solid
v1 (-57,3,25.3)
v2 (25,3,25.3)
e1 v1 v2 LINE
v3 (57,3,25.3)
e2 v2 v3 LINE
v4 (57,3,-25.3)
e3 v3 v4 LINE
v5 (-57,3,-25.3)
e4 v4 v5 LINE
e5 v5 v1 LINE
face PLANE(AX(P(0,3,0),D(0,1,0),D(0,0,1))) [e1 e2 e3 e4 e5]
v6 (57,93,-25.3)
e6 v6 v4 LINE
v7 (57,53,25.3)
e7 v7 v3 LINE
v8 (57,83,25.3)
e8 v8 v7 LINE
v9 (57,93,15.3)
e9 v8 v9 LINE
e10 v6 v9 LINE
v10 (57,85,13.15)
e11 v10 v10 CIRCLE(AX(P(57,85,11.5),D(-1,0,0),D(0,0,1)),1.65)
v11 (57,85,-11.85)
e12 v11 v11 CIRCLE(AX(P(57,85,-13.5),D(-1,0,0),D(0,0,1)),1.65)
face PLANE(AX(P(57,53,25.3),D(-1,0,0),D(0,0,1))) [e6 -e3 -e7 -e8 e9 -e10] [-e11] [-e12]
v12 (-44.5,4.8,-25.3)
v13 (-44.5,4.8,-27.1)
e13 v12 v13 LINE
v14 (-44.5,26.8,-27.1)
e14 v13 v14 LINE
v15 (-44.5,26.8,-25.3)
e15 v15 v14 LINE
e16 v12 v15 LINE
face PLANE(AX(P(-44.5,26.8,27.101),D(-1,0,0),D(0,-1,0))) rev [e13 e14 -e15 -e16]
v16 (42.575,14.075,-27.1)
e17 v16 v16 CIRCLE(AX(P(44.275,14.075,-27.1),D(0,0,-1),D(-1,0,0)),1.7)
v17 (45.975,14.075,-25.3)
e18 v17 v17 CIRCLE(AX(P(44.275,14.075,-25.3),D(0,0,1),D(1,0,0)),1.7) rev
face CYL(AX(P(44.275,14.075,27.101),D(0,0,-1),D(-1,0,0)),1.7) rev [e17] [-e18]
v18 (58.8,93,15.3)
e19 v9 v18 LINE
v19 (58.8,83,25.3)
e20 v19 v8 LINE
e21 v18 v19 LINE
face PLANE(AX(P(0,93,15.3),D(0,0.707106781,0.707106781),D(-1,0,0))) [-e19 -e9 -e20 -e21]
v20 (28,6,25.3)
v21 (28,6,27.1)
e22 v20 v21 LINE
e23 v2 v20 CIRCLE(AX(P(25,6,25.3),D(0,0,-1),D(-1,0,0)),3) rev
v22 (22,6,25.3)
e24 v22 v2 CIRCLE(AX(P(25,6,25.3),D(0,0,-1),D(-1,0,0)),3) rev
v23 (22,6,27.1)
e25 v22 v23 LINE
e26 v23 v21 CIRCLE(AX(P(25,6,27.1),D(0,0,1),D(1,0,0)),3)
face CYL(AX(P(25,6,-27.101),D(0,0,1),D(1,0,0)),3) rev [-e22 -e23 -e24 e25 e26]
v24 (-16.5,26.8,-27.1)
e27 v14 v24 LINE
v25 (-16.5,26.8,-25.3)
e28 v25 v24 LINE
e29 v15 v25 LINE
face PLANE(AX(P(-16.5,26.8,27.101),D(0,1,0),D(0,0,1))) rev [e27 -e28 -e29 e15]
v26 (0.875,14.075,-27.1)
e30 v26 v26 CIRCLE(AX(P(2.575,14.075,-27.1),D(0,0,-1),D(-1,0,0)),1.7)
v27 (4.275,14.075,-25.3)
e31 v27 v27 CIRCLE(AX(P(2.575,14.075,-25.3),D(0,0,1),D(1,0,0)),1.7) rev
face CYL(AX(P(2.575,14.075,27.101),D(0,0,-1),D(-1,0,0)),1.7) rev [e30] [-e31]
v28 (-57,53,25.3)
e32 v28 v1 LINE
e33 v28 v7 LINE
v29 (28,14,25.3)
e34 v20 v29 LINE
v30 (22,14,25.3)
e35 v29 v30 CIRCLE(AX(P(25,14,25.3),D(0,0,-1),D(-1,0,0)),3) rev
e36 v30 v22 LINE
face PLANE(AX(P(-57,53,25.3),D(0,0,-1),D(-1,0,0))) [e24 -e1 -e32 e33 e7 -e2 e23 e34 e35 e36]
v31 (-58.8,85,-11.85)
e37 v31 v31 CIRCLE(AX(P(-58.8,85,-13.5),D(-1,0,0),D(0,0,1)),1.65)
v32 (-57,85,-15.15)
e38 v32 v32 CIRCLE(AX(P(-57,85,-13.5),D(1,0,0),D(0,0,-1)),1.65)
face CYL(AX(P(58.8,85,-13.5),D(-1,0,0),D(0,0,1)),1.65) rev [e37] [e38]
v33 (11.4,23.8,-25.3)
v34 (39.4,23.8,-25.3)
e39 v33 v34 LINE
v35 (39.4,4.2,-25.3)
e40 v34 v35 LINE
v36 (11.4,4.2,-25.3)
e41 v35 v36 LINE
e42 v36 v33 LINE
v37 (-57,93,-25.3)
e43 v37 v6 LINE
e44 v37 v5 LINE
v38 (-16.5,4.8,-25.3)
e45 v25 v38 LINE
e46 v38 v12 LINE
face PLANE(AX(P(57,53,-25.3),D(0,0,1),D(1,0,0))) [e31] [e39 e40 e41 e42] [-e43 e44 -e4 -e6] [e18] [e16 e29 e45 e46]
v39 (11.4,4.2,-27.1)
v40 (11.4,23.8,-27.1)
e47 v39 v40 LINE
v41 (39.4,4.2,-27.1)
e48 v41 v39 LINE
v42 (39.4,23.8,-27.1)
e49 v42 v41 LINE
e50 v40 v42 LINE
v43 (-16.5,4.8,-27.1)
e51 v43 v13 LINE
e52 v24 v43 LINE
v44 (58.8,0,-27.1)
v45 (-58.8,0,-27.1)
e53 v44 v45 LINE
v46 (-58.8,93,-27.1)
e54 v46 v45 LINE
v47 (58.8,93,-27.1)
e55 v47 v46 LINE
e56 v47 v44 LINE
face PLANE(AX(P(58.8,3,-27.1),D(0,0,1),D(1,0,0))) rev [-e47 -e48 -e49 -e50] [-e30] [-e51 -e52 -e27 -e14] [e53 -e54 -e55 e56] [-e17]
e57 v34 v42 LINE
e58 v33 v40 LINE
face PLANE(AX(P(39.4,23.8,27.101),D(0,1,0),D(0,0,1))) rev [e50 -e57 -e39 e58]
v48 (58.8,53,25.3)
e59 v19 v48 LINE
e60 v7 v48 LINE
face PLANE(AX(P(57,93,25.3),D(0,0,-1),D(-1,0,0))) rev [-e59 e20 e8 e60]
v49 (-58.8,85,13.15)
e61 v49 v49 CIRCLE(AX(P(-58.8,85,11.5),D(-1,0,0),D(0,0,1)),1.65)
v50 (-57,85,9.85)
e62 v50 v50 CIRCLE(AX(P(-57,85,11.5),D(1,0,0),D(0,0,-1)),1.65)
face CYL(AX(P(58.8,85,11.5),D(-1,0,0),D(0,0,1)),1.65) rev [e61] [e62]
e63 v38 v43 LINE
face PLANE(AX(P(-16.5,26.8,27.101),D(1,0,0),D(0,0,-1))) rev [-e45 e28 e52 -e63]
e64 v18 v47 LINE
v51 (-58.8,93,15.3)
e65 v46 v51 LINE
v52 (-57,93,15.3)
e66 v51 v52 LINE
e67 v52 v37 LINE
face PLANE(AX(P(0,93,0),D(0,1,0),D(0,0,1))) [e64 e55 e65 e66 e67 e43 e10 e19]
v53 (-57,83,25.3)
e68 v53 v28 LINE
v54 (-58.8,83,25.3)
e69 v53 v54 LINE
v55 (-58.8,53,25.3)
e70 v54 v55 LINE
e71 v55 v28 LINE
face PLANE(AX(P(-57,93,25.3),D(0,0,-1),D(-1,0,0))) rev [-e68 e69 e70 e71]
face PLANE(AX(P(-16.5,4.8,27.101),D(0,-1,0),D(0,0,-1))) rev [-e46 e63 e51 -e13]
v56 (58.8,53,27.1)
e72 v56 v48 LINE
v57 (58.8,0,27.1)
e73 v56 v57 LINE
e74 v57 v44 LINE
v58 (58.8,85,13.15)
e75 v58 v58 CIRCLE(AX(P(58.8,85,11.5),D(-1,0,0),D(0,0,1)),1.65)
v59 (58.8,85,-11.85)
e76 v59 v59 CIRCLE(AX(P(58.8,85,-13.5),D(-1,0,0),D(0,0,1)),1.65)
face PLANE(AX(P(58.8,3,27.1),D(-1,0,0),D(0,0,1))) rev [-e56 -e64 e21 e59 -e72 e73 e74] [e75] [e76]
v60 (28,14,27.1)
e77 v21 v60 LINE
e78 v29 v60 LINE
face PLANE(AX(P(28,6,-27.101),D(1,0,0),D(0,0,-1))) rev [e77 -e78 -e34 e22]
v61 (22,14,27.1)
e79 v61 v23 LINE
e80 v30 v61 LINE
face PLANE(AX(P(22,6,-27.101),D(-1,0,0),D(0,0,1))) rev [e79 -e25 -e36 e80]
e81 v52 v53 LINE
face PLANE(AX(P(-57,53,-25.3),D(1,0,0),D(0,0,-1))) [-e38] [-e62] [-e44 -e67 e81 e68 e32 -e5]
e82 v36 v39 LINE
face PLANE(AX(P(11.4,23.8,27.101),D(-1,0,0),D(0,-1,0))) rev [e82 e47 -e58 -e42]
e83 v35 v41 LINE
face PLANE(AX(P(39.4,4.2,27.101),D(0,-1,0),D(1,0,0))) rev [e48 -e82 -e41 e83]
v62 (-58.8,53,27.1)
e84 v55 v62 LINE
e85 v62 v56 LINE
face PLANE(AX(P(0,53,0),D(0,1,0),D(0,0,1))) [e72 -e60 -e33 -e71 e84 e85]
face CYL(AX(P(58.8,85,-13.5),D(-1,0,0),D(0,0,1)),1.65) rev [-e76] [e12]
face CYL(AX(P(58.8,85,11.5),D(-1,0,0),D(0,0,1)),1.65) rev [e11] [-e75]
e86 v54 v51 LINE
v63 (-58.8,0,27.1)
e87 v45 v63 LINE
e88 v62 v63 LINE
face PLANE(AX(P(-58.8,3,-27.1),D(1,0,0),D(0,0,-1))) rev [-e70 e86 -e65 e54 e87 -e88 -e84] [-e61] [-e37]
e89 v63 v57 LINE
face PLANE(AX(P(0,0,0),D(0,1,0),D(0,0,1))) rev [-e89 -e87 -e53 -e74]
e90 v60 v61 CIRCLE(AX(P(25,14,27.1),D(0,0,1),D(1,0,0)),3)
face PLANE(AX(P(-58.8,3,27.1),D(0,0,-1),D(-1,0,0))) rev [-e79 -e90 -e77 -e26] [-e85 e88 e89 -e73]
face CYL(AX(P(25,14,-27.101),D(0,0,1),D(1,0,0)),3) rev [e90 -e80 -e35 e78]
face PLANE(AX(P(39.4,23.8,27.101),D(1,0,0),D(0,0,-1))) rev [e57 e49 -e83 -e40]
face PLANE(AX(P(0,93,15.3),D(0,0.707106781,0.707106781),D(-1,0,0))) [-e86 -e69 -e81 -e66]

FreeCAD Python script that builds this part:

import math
import FreeCAD as App
import Part
import Sketcher

V = App.Vector


def edges_at(feature, points):
    """Names of the edges that pass closest to the given points."""
    edges = feature.Shape.Edges
    near = lambda p: min(range(len(edges)), key=lambda i: edges[i].distToShape(Part.Vertex(*p))[0])
    return sorted({f"Edge{near(p) + 1}" for p in points})

doc = App.newDocument("Part")
params = doc.addObject("Spreadsheet::Sheet", "Params")
for row, (alias, value) in enumerate([
    ("sketch1_width", "117.6 mm"),
    ("sketch1_height", "54.2 mm"),
    ("pad1_length", "3 mm"),
    ("sketch2_width", "114 mm"),
    ("sketch2_width2", "117.6 mm"),
    ("sketch2_height", "54.2 mm"),
    ("sketch2_height2", "50.6 mm"),
    ("pad2_length", "50 mm"),
    ("sketch3_width", "114 mm"),
    ("sketch3_width2", "1.8 mm"),
    ("sketch3_height", "50.6 mm"),
    ("sketch3_height2", "52.4 mm"),
    ("pad3_length", "40 mm"),
    ("chamfer_size", "10 mm"),
    ("sketch4_diameter", "3.3 mm"),
    ("sketch5_diameter", "3.4 mm"),
    ("sketch6_diameter", "3.4 mm"),
    ("sketch7_width", "28 mm"),
    ("sketch7_height", "19.6 mm"),
    ("sketch8_width", "28 mm"),
    ("sketch8_height", "22 mm"),
    ("sketch9_radius", "3 mm"),
    ("sketch9_height", "8 mm"),
], start=1):
    params.set(f"A{row}", alias)
    params.set(f"B{row}", "=" + value)
    params.setAlias(f"B{row}", alias)

body = doc.addObject("PartDesign::Body", "Body")

# Sketch on XZ plane
sketch1 = body.newObject("Sketcher::SketchObject", "Sketch")
sketch1.AttachmentSupport = (doc.getObject("XZ_Plane"), [""])
sketch1.MapMode = "FlatFace"
sketch1.addGeometry([
    Part.LineSegment(V(-59, -27, 0), V(-59, 27, 0)),
    Part.LineSegment(V(-59, 27, 0), V(59, 27, 0)),
    Part.LineSegment(V(59, 27, 0), V(59, -27, 0)),
    Part.LineSegment(V(59, -27, 0), V(-59, -27, 0)),
], False)
sketch1.addConstraint([
    Sketcher.Constraint("Coincident", 0, 2, 1, 1),
    Sketcher.Constraint("Coincident", 1, 2, 2, 1),
    Sketcher.Constraint("Coincident", 2, 2, 3, 1),
    Sketcher.Constraint("Coincident", 3, 2, 0, 1),
    Sketcher.Constraint("Vertical", 0),
    Sketcher.Constraint("Horizontal", 1),
    Sketcher.Constraint("Vertical", 2),
    Sketcher.Constraint("Horizontal", 3),
    Sketcher.Constraint("Symmetric", 0, 2, 2, 2, -1, 1),
    Sketcher.Constraint("DistanceX", 1, 1, 1, 2, 117.6),
    Sketcher.Constraint("DistanceY", 0, 1, 0, 2, 54.2),
])
sketch1.setExpression("Constraints[9]", "Params.sketch1_width")
sketch1.setExpression("Constraints[10]", "Params.sketch1_height")
pad1 = body.newObject("PartDesign::Pad", "Pad")
pad1.Profile = sketch1
pad1.setExpression("Length", "Params.pad1_length")
pad1.Reversed = True

# Sketch on XZ plane
sketch2 = body.newObject("Sketcher::SketchObject", "Sketch001")
sketch2.AttachmentSupport = (doc.getObject("XZ_Plane"), [""])
sketch2.MapMode = "FlatFace"
sketch2.AttachmentOffset = App.Placement(V(0, 0, -3), App.Rotation())
sketch2.addGeometry([
    Part.LineSegment(V(-59, -27, 0), V(-59, 27, 0)),  # 0
    Part.LineSegment(V(-59, 27, 0), V(59, 27, 0)),  # 1
    Part.LineSegment(V(59, 27, 0), V(59, -27, 0)),  # 2
    Part.LineSegment(V(59, -27, 0), V(-59, -27, 0)),  # 3
    Part.LineSegment(V(57, 25, 0), V(-57, 25, 0)),  # 4
    Part.LineSegment(V(-57, 25, 0), V(-57, -25, 0)),  # 5
    Part.LineSegment(V(-57, -25, 0), V(57, -25, 0)),  # 6
    Part.LineSegment(V(57, -25, 0), V(57, 25, 0)),  # 7
], False)
sketch2.addConstraint([
    Sketcher.Constraint("Coincident", 0, 2, 1, 1),
    Sketcher.Constraint("Coincident", 1, 2, 2, 1),
    Sketcher.Constraint("Coincident", 2, 2, 3, 1),
    Sketcher.Constraint("Coincident", 3, 2, 0, 1),
    Sketcher.Constraint("Coincident", 4, 2, 5, 1),
    Sketcher.Constraint("Coincident", 5, 2, 6, 1),
    Sketcher.Constraint("Coincident", 6, 2, 7, 1),
    Sketcher.Constraint("Coincident", 7, 2, 4, 1),
    Sketcher.Constraint("Vertical", 0),
    Sketcher.Constraint("Horizontal", 1),
    Sketcher.Constraint("Vertical", 2),
    Sketcher.Constraint("Horizontal", 3),
    Sketcher.Constraint("Horizontal", 4),
    Sketcher.Constraint("Vertical", 5),
    Sketcher.Constraint("Horizontal", 6),
    Sketcher.Constraint("Vertical", 7),
    Sketcher.Constraint("Symmetric", 0, 2, 2, 2, -1, 1),
    Sketcher.Constraint("Symmetric", 4, 2, 6, 2, -1, 1),
    Sketcher.Constraint("DistanceX", 4, 2, 4, 1, 114.0),
    Sketcher.Constraint("DistanceX", 1, 1, 1, 2, 117.6),
    Sketcher.Constraint("DistanceY", 0, 1, 0, 2, 54.2),
    Sketcher.Constraint("DistanceY", 5, 2, 5, 1, 50.6),
])
sketch2.setExpression("Constraints[18]", "Params.sketch2_width")
sketch2.setExpression("Constraints[19]", "Params.sketch2_width2")
sketch2.setExpression("Constraints[20]", "Params.sketch2_height")
sketch2.setExpression("Constraints[21]", "Params.sketch2_height2")
pad2 = body.newObject("PartDesign::Pad", "Pad001")
pad2.Profile = sketch2
pad2.setExpression("Length", "Params.pad2_length")
pad2.Reversed = True

# Sketch on XZ plane
sketch3 = body.newObject("Sketcher::SketchObject", "Sketch002")
sketch3.AttachmentSupport = (doc.getObject("XZ_Plane"), [""])
sketch3.MapMode = "FlatFace"
sketch3.AttachmentOffset = App.Placement(V(0, 0, -53), App.Rotation())
sketch3.addGeometry([
    Part.LineSegment(V(57, -25.3, 0), V(57, 25.3, 0)),  # 0
    Part.LineSegment(V(57, 25.3, 0), V(58.8, 25.3, 0)),  # 1
    Part.LineSegment(V(58.8, 25.3, 0), V(58.8, -27.1, 0)),  # 2
    Part.LineSegment(V(58.8, -27.1, 0), V(-58.8, -27.1, 0)),  # 3
    Part.LineSegment(V(-58.8, -27.1, 0), V(-58.8, 25.3, 0)),  # 4
    Part.LineSegment(V(-58.8, 25.3, 0), V(-57, 25.3, 0)),  # 5
    Part.LineSegment(V(-57, 25.3, 0), V(-57, -25.3, 0)),  # 6
    Part.LineSegment(V(-57, -25.3, 0), V(57, -25.3, 0)),  # 7
], False)
sketch3.addConstraint([
    Sketcher.Constraint("Coincident", 0, 2, 1, 1),
    Sketcher.Constraint("Coincident", 1, 2, 2, 1),
    Sketcher.Constraint("Coincident", 2, 2, 3, 1),
    Sketcher.Constraint("Coincident", 3, 2, 4, 1),
    Sketcher.Constraint("Coincident", 4, 2, 5, 1),
    Sketcher.Constraint("Coincident", 5, 2, 6, 1),
    Sketcher.Constraint("Coincident", 6, 2, 7, 1),
    Sketcher.Constraint("Coincident", 7, 2, 0, 1),
    Sketcher.Constraint("Vertical", 0),
    Sketcher.Constraint("Horizontal", 1),
    Sketcher.Constraint("Vertical", 2),
    Sketcher.Constraint("Horizontal", 3),
    Sketcher.Constraint("Vertical", 4),
    Sketcher.Constraint("Horizontal", 5),
    Sketcher.Constraint("Vertical", 6),
    Sketcher.Constraint("Horizontal", 7),
    Sketcher.Constraint("Symmetric", 0, 2, 6, 2, -1, 1),
    Sketcher.Constraint("Symmetric", 1, 2, 4, 2, -2),
    Sketcher.Constraint("DistanceX", 7, 1, 7, 2, 114.0),
    Sketcher.Constraint("DistanceX", 1, 1, 1, 2, 1.8),
    Sketcher.Constraint("DistanceY", 0, 1, 0, 2, 50.6),
    Sketcher.Constraint("DistanceY", 2, 2, 2, 1, 52.4),
])
sketch3.setExpression("Constraints[18]", "Params.sketch3_width")
sketch3.setExpression("Constraints[19]", "Params.sketch3_width2")
sketch3.setExpression("Constraints[20]", "Params.sketch3_height")
sketch3.setExpression("Constraints[21]", "Params.sketch3_height2")
pad3 = body.newObject("PartDesign::Pad", "Pad002")
pad3.Profile = sketch3
pad3.setExpression("Length", "Params.pad3_length")
pad3.Reversed = True
doc.recompute()

chamfer = body.newObject("PartDesign::Chamfer", "Chamfer")
chamfer.Base = (pad3, edges_at(pad3, [(-57.9, 93, 25.3), (57.9, 93, 25.3)]))
chamfer.setExpression("Size", "Params.chamfer_size")

# Sketch on YZ plane
sketch4 = body.newObject("Sketcher::SketchObject", "Sketch003")
sketch4.AttachmentSupport = (doc.getObject("YZ_Plane"), [""])
sketch4.MapMode = "FlatFace"
sketch4.AttachmentOffset = App.Placement(V(0, 0, -58.8), App.Rotation())
sketch4.addGeometry([
    Part.Circle(V(85, 11.5, 0), V(0, 0, 1), 1.6),
    Part.Circle(V(85, -13.5, 0), V(0, 0, 1), 1.6),
], False)
sketch4.addConstraint([
    Sketcher.Constraint("Equal", 0, 1),
    Sketcher.Constraint("Vertical", 0, 3, 1, 3),
    Sketcher.Constraint("Diameter", 0, 3.3),
    Sketcher.Constraint("DistanceX", -1, 1, 0, 3, 85.0),
    Sketcher.Constraint("DistanceY", 1, 3, 0, 3, 25.0),
    Sketcher.Constraint("DistanceY", -1, 1, 0, 3, 11.5),
])
sketch4.setExpression("Constraints[2]", "Params.sketch4_diameter")
pocket1 = body.newObject("PartDesign::Pocket", "Pocket")
pocket1.Profile = sketch4
pocket1.Type = "ThroughAll"
pocket1.Reversed = True

# Sketch on XY plane
sketch5 = body.newObject("Sketcher::SketchObject", "Sketch004")
sketch5.AttachmentSupport = (doc.getObject("XY_Plane"), [""])
sketch5.MapMode = "FlatFace"
sketch5.AttachmentOffset = App.Placement(V(0, 0, -27.1), App.Rotation())
sketch5.addGeometry(Part.Circle(V(2.6, 14.1, 0), V(0, 0, 1), 1.7), False)
sketch5.addConstraint([
    Sketcher.Constraint("Diameter", 0, 3.4),
    Sketcher.Constraint("DistanceX", -1, 1, 0, 3, 2.575),
    Sketcher.Constraint("DistanceY", -1, 1, 0, 3, 14.075),
])
sketch5.setExpression("Constraints[0]", "Params.sketch5_diameter")
pocket2 = body.newObject("PartDesign::Pocket", "Pocket001")
pocket2.Profile = sketch5
pocket2.Type = "UpToFirst"
pocket2.Reversed = True

# Sketch on XY plane
sketch6 = body.newObject("Sketcher::SketchObject", "Sketch005")
sketch6.AttachmentSupport = (doc.getObject("XY_Plane"), [""])
sketch6.MapMode = "FlatFace"
sketch6.AttachmentOffset = App.Placement(V(0, 0, -27.1), App.Rotation())
sketch6.addGeometry(Part.Circle(V(44.3, 14.1, 0), V(0, 0, 1), 1.7), False)
sketch6.addConstraint([
    Sketcher.Constraint("Diameter", 0, 3.4),
    Sketcher.Constraint("DistanceX", -1, 1, 0, 3, 44.275),
    Sketcher.Constraint("DistanceY", -1, 1, 0, 3, 14.075),
])
sketch6.setExpression("Constraints[0]", "Params.sketch6_diameter")
pocket3 = body.newObject("PartDesign::Pocket", "Pocket002")
pocket3.Profile = sketch6
pocket3.Type = "UpToFirst"
pocket3.Reversed = True

# Sketch on XY plane
sketch7 = body.newObject("Sketcher::SketchObject", "Sketch006")
sketch7.AttachmentSupport = (doc.getObject("XY_Plane"), [""])
sketch7.MapMode = "FlatFace"
sketch7.AttachmentOffset = App.Placement(V(0, 0, -27.1), App.Rotation())
sketch7.addGeometry([
    Part.LineSegment(V(39, 24, 0), V(39, 4, 0)),
    Part.LineSegment(V(39, 4, 0), V(11, 4, 0)),
    Part.LineSegment(V(11, 4, 0), V(11, 24, 0)),
    Part.LineSegment(V(11, 24, 0), V(39, 24, 0)),
], False)
sketch7.addConstraint([
    Sketcher.Constraint("Coincident", 0, 2, 1, 1),
    Sketcher.Constraint("Coincident", 1, 2, 2, 1),
    Sketcher.Constraint("Coincident", 2, 2, 3, 1),
    Sketcher.Constraint("Coincident", 3, 2, 0, 1),
    Sketcher.Constraint("Vertical", 0),
    Sketcher.Constraint("Horizontal", 1),
    Sketcher.Constraint("Vertical", 2),
    Sketcher.Constraint("Horizontal", 3),
    Sketcher.Constraint("DistanceX", 1, 2, 1, 1, 28.0),
    Sketcher.Constraint("DistanceY", 0, 2, 0, 1, 19.6),
    Sketcher.Constraint("DistanceX", -1, 1, 0, 2, 39.4),
    Sketcher.Constraint("DistanceY", -1, 1, 0, 2, 4.2),
])
sketch7.setExpression("Constraints[8]", "Params.sketch7_width")
sketch7.setExpression("Constraints[9]", "Params.sketch7_height")
pocket4 = body.newObject("PartDesign::Pocket", "Pocket003")
pocket4.Profile = sketch7
pocket4.Type = "UpToFirst"
pocket4.Reversed = True

# Sketch on XY plane
sketch8 = body.newObject("Sketcher::SketchObject", "Sketch007")
sketch8.AttachmentSupport = (doc.getObject("XY_Plane"), [""])
sketch8.MapMode = "FlatFace"
sketch8.AttachmentOffset = App.Placement(V(0, 0, -27.1), App.Rotation())
sketch8.addGeometry([
    Part.LineSegment(V(-16, 27, 0), V(-16, 5, 0)),
    Part.LineSegment(V(-16, 5, 0), V(-44, 5, 0)),
    Part.LineSegment(V(-44, 5, 0), V(-44, 27, 0)),
    Part.LineSegment(V(-44, 27, 0), V(-16, 27, 0)),
], False)
sketch8.addConstraint([
    Sketcher.Constraint("Coincident", 0, 2, 1, 1),
    Sketcher.Constraint("Coincident", 1, 2, 2, 1),
    Sketcher.Constraint("Coincident", 2, 2, 3, 1),
    Sketcher.Constraint("Coincident", 3, 2, 0, 1),
    Sketcher.Constraint("Vertical", 0),
    Sketcher.Constraint("Horizontal", 1),
    Sketcher.Constraint("Vertical", 2),
    Sketcher.Constraint("Horizontal", 3),
    Sketcher.Constraint("DistanceX", 1, 2, 1, 1, 28.0),
    Sketcher.Constraint("DistanceY", 0, 2, 0, 1, 22.0),
    Sketcher.Constraint("DistanceX", 0, 2, -1, 1, 16.5),
    Sketcher.Constraint("DistanceY", -1, 1, 0, 2, 4.8),
])
sketch8.setExpression("Constraints[8]", "Params.sketch8_width")
sketch8.setExpression("Constraints[9]", "Params.sketch8_height")
pocket5 = body.newObject("PartDesign::Pocket", "Pocket004")
pocket5.Profile = sketch8
pocket5.Type = "UpToFirst"
pocket5.Reversed = True

# Sketch on XY plane
sketch9 = body.newObject("Sketcher::SketchObject", "Sketch008")
sketch9.AttachmentSupport = (doc.getObject("XY_Plane"), [""])
sketch9.MapMode = "FlatFace"
sketch9.AttachmentOffset = App.Placement(V(0, 0, 27.1), App.Rotation())
sketch9.addGeometry([
    Part.LineSegment(V(22, 14, 0), V(22, 6, 0)),
    Part.ArcOfCircle(Part.Circle(V(25, 6, 0), V(0, 0, 1), 3), math.radians(180), math.radians(360)),
    Part.LineSegment(V(28, 6, 0), V(28, 14, 0)),
    Part.ArcOfCircle(Part.Circle(V(25, 14, 0), V(0, 0, 1), 3), math.radians(0), math.radians(180)),
], False)
sketch9.addConstraint([
    Sketcher.Constraint("Tangent", 0, 2, 1, 1),
    Sketcher.Constraint("Tangent", 1, 2, 2, 1),
    Sketcher.Constraint("Tangent", 2, 2, 3, 1),
    Sketcher.Constraint("Tangent", 3, 2, 0, 1),
    Sketcher.Constraint("Vertical", 0),
    Sketcher.Constraint("Vertical", 2),
    Sketcher.Constraint("Radius", 1, 3.0),
    Sketcher.Constraint("DistanceY", 0, 2, 0, 1, 8.0),
    Sketcher.Constraint("DistanceX", -1, 1, 1, 3, 25.0),
    Sketcher.Constraint("DistanceY", -1, 1, 1, 3, 6.0),
])
sketch9.setExpression("Constraints[6]", "Params.sketch9_radius")
sketch9.setExpression("Constraints[7]", "Params.sketch9_height")
pocket6 = body.newObject("PartDesign::Pocket", "Pocket005")
pocket6.Profile = sketch9
pocket6.Type = "UpToFirst"

doc.recompute()
